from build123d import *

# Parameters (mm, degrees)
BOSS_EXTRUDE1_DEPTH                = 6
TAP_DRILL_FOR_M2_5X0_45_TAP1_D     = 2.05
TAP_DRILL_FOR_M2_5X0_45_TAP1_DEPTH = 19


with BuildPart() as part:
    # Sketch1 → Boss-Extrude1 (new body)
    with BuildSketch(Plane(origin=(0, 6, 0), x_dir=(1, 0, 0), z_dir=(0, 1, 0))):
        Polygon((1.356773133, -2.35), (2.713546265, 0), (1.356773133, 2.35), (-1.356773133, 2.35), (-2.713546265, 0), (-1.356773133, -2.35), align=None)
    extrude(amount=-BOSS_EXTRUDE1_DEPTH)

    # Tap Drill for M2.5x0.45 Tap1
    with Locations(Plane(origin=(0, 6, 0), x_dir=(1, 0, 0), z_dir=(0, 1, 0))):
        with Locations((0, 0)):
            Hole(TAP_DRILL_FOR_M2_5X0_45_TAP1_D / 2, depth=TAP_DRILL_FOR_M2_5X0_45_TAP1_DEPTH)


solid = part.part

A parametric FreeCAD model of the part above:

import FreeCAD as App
import Part
import Sketcher

V = App.Vector
Q = App.Units.Quantity

doc = App.newDocument("Part")
body = doc.addObject("PartDesign::Body", "Body")

sketch1 = body.newObject("Sketcher::SketchObject", "Sketch")
sketch1.AttachmentSupport = (doc.getObject("XZ_Plane"), [""])
sketch1.MapMode = "FlatFace"
sketch1.AttachmentOffset = App.Placement(V(0, 0, -6), App.Rotation())
sketch1.addGeometry([
    Part.LineSegment(V(1.356773, 2.35, 0), V(2.713546, 0, 0)),
    Part.LineSegment(V(2.713546, 0, 0), V(1.356773, -2.35, 0)),
    Part.LineSegment(V(1.356773, -2.35, 0), V(-1.356773, -2.35, 0)),
    Part.LineSegment(V(-1.356773, -2.35, 0), V(-2.713546, 0, 0)),
    Part.LineSegment(V(-2.713546, 0, 0), V(-1.356773, 2.35, 0)),
    Part.LineSegment(V(-1.356773, 2.35, 0), V(1.356773, 2.35, 0)),
], False)
sketch1.addConstraint([
    Sketcher.Constraint("Coincident", 0, 2, 1, 1),
    Sketcher.Constraint("Coincident", 1, 2, 2, 1),
    Sketcher.Constraint("Coincident", 2, 2, 3, 1),
    Sketcher.Constraint("Coincident", 3, 2, 4, 1),
    Sketcher.Constraint("Coincident", 4, 2, 5, 1),
    Sketcher.Constraint("Coincident", 5, 2, 0, 1),
    Sketcher.Constraint("Horizontal", 2),
    Sketcher.Constraint("Horizontal", 5),
    Sketcher.Constraint("Symmetric", 0, 2, 3, 2, -1, 1),
    Sketcher.Constraint("Symmetric", 1, 2, 4, 2, -1, 1),
    Sketcher.Constraint("PointOnObject", 0, 2, -1),
    Sketcher.Constraint("Parallel", 0, 3),
    Sketcher.Constraint("Vertical", 2, 2, 4, 2),
    Sketcher.Constraint("Angle", 0, Q("-60 deg")),
    Sketcher.Constraint("DistanceY", 2, 2, 4, 2, Q("4.7 mm")),
    Sketcher.Constraint("DistanceX", 2, 2, 2, 1, Q("2.713546 mm")),
])
pad1 = body.newObject("PartDesign::Pad", "Pad")
pad1.Profile = sketch1
pad1.Length = 6

sketch2 = body.newObject("Sketcher::SketchObject", "Sketch001")
sketch2.AttachmentSupport = (doc.getObject("XZ_Plane"), [""])
sketch2.MapMode = "FlatFace"
sketch2.AttachmentOffset = App.Placement(V(0, 0, -6), App.Rotation())
sketch2.addGeometry(Part.Circle(V(0, 0, 0), V(0, 0, 1), 1.025), False)
sketch2.addConstraint([
    Sketcher.Constraint("Coincident", 0, 3, -1, 1),
    Sketcher.Constraint("Diameter", 0, Q("2.05 mm")),
])
doc.recompute()
hole = body.newObject("PartDesign::Hole", "Hole")
hole.Profile = sketch2
hole.ThreadType = "None"
hole.Diameter = 2.05
hole.DepthType = "Dimension"
hole.Depth = 19
hole.DrillPoint = "Flat"
hole.Reversed = True

doc.recompute()
